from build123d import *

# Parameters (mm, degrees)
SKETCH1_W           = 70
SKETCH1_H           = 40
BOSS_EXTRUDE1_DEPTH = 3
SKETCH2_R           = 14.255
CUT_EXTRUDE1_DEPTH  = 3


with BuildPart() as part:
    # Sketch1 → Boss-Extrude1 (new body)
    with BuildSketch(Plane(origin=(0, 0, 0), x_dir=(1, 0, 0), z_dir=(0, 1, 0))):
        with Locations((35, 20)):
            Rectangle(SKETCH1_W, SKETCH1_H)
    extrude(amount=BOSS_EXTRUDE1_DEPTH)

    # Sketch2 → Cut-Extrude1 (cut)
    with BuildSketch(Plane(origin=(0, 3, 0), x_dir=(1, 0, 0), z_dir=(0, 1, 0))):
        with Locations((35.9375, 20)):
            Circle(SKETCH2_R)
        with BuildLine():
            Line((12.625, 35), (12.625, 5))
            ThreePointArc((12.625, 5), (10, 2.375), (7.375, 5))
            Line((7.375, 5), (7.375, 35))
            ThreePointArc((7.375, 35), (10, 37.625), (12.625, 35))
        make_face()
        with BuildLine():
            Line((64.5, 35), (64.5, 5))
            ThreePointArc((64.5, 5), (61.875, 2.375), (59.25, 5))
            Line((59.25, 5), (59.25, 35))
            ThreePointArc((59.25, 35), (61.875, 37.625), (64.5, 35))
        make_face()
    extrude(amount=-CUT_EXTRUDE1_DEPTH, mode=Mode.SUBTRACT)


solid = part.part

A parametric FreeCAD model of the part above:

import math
import FreeCAD as App
import Part
import Sketcher
from FreeCAD import Vector

doc = App.newDocument("Part")
body = doc.addObject("PartDesign::Body", "Body")

# Sketch on XZ plane
sketch1 = doc.addObject("Sketcher::SketchObject", "Sketch")
body.addObject(sketch1)
sketch1.AttachmentSupport = (doc.XZ_Plane, [""])
sketch1.MapMode = "FlatFace"
sketch1.addGeometry([
    Part.LineSegment(Vector(0, -40, 0), Vector(0, 0, 0)),
    Part.LineSegment(Vector(0, 0, 0), Vector(70, 0, 0)),
    Part.LineSegment(Vector(70, 0, 0), Vector(70, -40, 0)),
    Part.LineSegment(Vector(70, -40, 0), Vector(0, -40, 0)),
], False)
sketch1.addConstraint([
    Sketcher.Constraint("Coincident", 0, 2, 1, 1),
    Sketcher.Constraint("Coincident", 1, 2, 2, 1),
    Sketcher.Constraint("Coincident", 2, 2, 3, 1),
    Sketcher.Constraint("Coincident", 3, 2, 0, 1),
    Sketcher.Constraint("Vertical", 0),
    Sketcher.Constraint("Horizontal", 1),
    Sketcher.Constraint("Vertical", 2),
    Sketcher.Constraint("Horizontal", 3),
    Sketcher.Constraint("Coincident", 0, 2, -1, 1),
    Sketcher.Constraint("DistanceX", 1, 1, 1, 2, 70.0),
    Sketcher.Constraint("DistanceY", 0, 1, 0, 2, 40.0),
])
pad1 = doc.addObject("PartDesign::Pad", "Pad")
body.addObject(pad1)
pad1.Profile = sketch1
pad1.Length = 3
pad1.Reversed = True

# Sketch on XZ plane
sketch2 = doc.addObject("Sketcher::SketchObject", "Sketch001")
body.addObject(sketch2)
sketch2.AttachmentSupport = (doc.XZ_Plane, [""])
sketch2.MapMode = "FlatFace"
sketch2.AttachmentOffset = App.Placement(Vector(0, 0, -3), App.Rotation())
sketch2.addGeometry([
    Part.Circle(Vector(35.9375, -20, 0), Vector(0, 0, 1), 14.255),  # 0
    Part.LineSegment(Vector(12.625, -5, 0), Vector(12.625, -35, 0)),  # 1
    Part.ArcOfCircle(Part.Circle(Vector(10, -35, 0), Vector(0, 0, 1), 2.625), math.radians(180), math.radians(360)),  # 2
    Part.LineSegment(Vector(7.375, -35, 0), Vector(7.375, -5, 0)),  # 3
    Part.ArcOfCircle(Part.Circle(Vector(10, -5, 0), Vector(0, 0, 1), 2.625), math.radians(0), math.radians(180)),  # 4
    Part.LineSegment(Vector(64.5, -5, 0), Vector(64.5, -35, 0)),  # 5
    Part.ArcOfCircle(Part.Circle(Vector(61.875, -35, 0), Vector(0, 0, 1), 2.625), math.radians(180), math.radians(360)),  # 6
    Part.LineSegment(Vector(59.25, -35, 0), Vector(59.25, -5, 0)),  # 7
    Part.ArcOfCircle(Part.Circle(Vector(61.875, -5, 0), Vector(0, 0, 1), 2.625), math.radians(0), math.radians(180)),  # 8
], False)
sketch2.addConstraint([
    Sketcher.Constraint("Tangent", 1, 2, 2, 2),
    Sketcher.Constraint("Tangent", 2, 1, 3, 1),
    Sketcher.Constraint("Tangent", 3, 2, 4, 2),
    Sketcher.Constraint("Tangent", 4, 1, 1, 1),
    Sketcher.Constraint("Tangent", 5, 2, 6, 2),
    Sketcher.Constraint("Tangent", 6, 1, 7, 1),
    Sketcher.Constraint("Tangent", 7, 2, 8, 2),
    Sketcher.Constraint("Tangent", 8, 1, 5, 1),
    Sketcher.Constraint("Vertical", 1),
    Sketcher.Constraint("Vertical", 3),
    Sketcher.Constraint("Vertical", 5),
    Sketcher.Constraint("Vertical", 7),
    Sketcher.Constraint("Equal", 4, 6),
    Sketcher.Constraint("Horizontal", 2, 3, 6, 3),
    Sketcher.Constraint("Horizontal", 4, 3, 8, 3),
    Sketcher.Constraint("Diameter", 0, 28.51),
    Sketcher.Constraint("DistanceY", 1, 2, 1, 1, 30.0),
    Sketcher.Constraint("DistanceY", 0, 3, -1, 1, 20.0),
    Sketcher.Constraint("DistanceX", -1, 1, 2, 3, 10.0),
    Sketcher.Constraint("DistanceY", 2, 3, -1, 1, 35.0),
    Sketcher.Constraint("Radius", 2, 2.625),
    Sketcher.Constraint("DistanceX", -1, 1, 5, 2, 64.5),
    Sketcher.Constraint("DistanceX", -1, 1, 0, 3, 35.9375),
])
pocket1 = doc.addObject("PartDesign::Pocket", "Pocket")
body.addObject(pocket1)
pocket1.Profile = sketch2
pocket1.Length = 3
pocket1.Reversed = True

doc.recompute()
